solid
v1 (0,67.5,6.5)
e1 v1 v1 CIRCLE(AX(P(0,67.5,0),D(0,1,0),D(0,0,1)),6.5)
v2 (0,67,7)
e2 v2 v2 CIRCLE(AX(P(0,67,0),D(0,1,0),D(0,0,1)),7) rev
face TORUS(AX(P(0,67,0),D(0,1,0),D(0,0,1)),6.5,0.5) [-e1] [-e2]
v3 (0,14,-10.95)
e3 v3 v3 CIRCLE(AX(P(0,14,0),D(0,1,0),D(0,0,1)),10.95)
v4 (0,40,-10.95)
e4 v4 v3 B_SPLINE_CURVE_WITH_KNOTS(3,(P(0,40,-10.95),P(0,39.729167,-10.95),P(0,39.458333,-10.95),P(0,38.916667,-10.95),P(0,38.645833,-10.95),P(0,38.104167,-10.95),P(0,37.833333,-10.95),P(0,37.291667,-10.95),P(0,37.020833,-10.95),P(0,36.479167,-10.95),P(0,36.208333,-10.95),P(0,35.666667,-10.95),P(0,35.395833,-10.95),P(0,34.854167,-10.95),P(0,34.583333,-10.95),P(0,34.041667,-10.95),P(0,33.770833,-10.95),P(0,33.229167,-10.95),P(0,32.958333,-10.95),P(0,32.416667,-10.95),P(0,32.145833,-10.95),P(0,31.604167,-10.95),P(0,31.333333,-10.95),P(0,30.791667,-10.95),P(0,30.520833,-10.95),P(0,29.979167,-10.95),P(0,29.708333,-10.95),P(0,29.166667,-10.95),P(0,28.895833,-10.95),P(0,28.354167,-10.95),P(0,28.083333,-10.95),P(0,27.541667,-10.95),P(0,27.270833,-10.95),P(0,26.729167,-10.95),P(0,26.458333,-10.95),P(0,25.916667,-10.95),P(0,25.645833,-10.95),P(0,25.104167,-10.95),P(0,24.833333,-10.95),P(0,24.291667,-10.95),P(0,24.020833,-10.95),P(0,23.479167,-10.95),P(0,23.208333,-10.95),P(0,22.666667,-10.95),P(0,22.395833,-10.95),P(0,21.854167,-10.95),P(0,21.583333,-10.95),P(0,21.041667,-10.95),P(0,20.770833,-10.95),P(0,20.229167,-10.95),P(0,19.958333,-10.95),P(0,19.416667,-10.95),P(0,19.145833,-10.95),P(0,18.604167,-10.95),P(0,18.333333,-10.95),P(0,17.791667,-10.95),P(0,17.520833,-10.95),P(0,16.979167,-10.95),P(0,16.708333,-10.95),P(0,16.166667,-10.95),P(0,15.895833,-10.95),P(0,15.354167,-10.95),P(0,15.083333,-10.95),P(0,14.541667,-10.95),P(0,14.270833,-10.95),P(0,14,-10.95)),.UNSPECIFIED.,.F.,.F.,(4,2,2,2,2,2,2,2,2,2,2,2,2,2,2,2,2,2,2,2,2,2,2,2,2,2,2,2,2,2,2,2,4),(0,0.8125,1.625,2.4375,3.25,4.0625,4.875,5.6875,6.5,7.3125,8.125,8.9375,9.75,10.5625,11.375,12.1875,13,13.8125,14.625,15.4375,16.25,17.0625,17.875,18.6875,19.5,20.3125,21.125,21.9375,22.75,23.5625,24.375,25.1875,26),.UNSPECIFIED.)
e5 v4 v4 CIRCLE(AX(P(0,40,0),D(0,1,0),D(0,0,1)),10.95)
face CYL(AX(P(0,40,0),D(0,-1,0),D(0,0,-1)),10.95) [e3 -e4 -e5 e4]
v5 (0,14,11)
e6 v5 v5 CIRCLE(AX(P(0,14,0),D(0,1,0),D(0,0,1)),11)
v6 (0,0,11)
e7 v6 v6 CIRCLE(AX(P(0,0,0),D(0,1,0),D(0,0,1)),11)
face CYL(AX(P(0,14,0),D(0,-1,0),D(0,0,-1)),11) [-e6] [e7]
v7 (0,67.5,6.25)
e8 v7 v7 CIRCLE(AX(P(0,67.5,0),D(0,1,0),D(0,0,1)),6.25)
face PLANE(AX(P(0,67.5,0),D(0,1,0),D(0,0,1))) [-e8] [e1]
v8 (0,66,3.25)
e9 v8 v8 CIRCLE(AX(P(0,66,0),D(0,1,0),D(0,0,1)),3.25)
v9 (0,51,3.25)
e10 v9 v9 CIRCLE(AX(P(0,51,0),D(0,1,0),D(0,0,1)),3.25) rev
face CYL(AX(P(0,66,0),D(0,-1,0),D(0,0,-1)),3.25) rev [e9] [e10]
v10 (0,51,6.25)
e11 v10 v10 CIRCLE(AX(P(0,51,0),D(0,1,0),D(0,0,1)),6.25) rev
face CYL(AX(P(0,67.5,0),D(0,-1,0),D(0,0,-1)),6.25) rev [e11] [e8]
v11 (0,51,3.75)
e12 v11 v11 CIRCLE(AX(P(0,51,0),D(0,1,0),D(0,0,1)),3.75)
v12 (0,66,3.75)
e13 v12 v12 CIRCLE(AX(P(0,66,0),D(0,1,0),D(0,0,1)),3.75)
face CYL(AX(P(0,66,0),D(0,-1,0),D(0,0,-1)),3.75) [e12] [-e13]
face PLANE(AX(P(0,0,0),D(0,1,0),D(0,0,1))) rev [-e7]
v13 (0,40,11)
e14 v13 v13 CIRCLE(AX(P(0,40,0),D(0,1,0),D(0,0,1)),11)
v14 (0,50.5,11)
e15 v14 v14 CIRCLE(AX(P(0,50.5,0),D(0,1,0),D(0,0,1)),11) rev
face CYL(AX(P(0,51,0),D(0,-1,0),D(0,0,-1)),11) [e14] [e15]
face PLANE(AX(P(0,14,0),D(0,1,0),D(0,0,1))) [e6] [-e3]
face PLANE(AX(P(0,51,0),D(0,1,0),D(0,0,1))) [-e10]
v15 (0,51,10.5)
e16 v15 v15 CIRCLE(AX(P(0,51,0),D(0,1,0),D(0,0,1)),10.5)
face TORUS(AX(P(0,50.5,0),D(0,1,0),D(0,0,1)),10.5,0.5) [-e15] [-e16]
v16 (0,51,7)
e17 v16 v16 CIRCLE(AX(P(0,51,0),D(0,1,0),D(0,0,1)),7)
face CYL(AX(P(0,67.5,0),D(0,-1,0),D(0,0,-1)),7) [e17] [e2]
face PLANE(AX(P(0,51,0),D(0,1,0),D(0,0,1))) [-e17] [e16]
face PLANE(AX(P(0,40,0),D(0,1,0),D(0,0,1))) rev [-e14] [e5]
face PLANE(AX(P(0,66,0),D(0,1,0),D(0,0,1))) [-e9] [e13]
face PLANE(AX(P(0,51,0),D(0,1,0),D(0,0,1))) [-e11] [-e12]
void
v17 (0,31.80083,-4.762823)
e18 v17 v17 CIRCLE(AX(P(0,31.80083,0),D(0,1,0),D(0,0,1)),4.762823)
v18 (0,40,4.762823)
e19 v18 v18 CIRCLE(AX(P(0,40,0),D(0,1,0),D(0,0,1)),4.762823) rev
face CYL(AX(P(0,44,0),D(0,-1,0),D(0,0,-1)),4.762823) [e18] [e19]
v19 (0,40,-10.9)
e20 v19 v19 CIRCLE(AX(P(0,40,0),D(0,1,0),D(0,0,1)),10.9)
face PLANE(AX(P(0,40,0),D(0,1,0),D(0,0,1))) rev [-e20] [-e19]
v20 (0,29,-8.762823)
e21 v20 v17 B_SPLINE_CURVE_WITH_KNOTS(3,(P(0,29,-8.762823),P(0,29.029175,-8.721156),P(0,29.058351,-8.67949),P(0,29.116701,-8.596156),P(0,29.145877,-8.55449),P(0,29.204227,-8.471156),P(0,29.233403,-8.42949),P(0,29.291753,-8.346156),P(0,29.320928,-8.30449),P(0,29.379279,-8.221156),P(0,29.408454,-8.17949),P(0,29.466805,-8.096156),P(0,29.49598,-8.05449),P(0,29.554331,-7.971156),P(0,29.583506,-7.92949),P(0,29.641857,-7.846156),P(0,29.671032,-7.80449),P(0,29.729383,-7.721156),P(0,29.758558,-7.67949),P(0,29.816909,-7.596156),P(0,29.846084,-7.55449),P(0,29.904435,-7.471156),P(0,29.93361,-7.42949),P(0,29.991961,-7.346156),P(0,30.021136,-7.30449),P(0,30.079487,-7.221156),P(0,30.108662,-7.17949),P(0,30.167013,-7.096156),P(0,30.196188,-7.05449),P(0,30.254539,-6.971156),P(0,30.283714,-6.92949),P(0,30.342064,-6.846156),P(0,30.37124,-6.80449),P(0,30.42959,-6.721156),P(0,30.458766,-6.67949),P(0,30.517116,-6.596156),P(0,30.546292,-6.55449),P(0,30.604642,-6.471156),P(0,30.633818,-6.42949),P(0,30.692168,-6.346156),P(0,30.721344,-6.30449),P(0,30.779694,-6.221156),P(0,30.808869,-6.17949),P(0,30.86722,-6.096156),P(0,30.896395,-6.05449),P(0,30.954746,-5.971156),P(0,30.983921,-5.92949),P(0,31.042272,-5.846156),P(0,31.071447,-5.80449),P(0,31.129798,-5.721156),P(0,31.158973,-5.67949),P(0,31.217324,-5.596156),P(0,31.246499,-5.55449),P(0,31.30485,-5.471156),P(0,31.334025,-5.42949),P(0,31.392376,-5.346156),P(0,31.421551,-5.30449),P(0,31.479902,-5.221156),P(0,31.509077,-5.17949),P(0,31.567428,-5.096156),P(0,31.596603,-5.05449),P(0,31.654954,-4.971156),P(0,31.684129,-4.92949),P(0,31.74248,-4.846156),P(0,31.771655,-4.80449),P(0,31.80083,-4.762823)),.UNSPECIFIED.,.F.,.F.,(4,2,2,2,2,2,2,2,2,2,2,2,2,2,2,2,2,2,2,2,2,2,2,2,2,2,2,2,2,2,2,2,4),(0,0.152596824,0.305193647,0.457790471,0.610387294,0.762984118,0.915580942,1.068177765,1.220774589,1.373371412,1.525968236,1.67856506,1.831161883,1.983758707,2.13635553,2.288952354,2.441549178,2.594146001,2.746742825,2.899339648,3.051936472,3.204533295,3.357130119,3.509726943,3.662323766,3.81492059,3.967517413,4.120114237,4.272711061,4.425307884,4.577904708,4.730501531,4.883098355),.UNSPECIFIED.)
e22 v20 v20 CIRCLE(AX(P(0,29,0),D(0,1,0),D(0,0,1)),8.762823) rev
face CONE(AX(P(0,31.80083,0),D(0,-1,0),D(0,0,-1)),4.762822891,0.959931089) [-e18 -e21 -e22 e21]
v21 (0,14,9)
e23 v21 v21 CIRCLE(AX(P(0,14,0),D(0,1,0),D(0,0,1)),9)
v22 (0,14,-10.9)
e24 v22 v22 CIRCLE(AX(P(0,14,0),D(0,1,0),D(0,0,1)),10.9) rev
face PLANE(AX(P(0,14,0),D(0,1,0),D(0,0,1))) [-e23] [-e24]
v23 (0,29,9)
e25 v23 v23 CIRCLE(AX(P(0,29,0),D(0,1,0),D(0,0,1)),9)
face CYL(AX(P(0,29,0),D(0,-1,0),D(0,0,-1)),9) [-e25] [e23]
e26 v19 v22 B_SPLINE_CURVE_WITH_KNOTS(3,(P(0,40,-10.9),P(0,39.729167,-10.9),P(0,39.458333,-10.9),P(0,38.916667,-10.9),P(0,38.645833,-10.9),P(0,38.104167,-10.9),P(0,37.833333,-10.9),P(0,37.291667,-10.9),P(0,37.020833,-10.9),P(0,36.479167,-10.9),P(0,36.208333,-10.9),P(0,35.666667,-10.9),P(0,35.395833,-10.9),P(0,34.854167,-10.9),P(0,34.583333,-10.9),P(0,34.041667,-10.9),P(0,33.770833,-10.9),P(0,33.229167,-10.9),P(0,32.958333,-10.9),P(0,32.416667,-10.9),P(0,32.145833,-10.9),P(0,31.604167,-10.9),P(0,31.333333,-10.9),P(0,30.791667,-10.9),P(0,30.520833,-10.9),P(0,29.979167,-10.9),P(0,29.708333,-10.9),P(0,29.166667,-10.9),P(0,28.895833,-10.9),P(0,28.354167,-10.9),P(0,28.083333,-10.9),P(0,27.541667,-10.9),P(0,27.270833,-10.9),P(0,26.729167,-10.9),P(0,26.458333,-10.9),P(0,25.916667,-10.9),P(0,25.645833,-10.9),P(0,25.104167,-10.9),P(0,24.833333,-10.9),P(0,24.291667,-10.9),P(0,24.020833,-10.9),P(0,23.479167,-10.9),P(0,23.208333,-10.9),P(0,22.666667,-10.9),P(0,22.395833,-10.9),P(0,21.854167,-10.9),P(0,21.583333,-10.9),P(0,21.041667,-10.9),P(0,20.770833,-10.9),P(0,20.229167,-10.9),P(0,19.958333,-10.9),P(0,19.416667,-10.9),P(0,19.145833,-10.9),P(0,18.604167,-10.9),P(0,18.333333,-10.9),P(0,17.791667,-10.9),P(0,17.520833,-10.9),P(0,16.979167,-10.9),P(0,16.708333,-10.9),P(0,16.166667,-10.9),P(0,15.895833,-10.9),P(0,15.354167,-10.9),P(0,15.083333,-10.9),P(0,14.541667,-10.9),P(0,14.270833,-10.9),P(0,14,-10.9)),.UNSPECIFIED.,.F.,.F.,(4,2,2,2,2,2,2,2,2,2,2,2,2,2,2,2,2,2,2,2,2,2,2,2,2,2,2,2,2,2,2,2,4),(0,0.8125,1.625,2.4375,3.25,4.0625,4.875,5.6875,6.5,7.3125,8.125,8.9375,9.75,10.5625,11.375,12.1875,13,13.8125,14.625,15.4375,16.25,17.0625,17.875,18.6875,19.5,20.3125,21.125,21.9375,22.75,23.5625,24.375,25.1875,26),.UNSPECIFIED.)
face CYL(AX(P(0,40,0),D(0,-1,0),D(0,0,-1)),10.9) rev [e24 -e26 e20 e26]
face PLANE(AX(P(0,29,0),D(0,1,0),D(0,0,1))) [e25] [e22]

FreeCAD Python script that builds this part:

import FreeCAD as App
import Part
import Sketcher
from FreeCAD import Vector


def edges_at(feature, points):
    """Names of the edges that pass closest to the given points."""
    edges = feature.Shape.Edges
    near = lambda p: min(range(len(edges)), key=lambda i: edges[i].distToShape(Part.Vertex(*p))[0])
    return sorted({f"Edge{near(p) + 1}" for p in points})

doc = App.newDocument("Part")
body = doc.addObject("PartDesign::Body", "Body")

# Sketch on XZ plane
sketch1 = body.newObject("Sketcher::SketchObject", "Sketch")
sketch1.AttachmentSupport = (doc.getObject("XZ_Plane"), [""])
sketch1.MapMode = "FlatFace"
sketch1.addGeometry(Part.Circle(Vector(0, 0, 0), Vector(0, 0, 1), 11), False)
sketch1.addConstraint([
    Sketcher.Constraint("Coincident", 0, 3, -1, 1),
    Sketcher.Constraint("Diameter", 0, 22.0),
])
pad1 = body.newObject("PartDesign::Pad", "Pad")
pad1.Profile = sketch1
pad1.Length = 14
pad1.Reversed = True

# Sketch on XZ plane
sketch2 = body.newObject("Sketcher::SketchObject", "Sketch001")
sketch2.AttachmentSupport = (doc.getObject("XZ_Plane"), [""])
sketch2.MapMode = "FlatFace"
sketch2.AttachmentOffset = App.Placement(Vector(0, 0, -14), App.Rotation())
sketch2.addGeometry([
    Part.Circle(Vector(0, 0, 0), Vector(0, 0, 1), 10.95),
    Part.Circle(Vector(0, 0, 0), Vector(0, 0, 1), 10.9),
], False)
sketch2.addConstraint([
    Sketcher.Constraint("Coincident", 0, 3, -1, 1),
    Sketcher.Constraint("Coincident", 1, 3, -1, 1),
    Sketcher.Constraint("Diameter", 0, 21.9),
    Sketcher.Constraint("Diameter", 1, 21.8),
])
pad2 = body.newObject("PartDesign::Pad", "Pad001")
pad2.Profile = sketch2
pad2.Length = 26
pad2.Reversed = True

# Sketch on XZ plane
sketch3 = body.newObject("Sketcher::SketchObject", "Sketch002")
sketch3.AttachmentSupport = (doc.getObject("XZ_Plane"), [""])
sketch3.MapMode = "FlatFace"
sketch3.AttachmentOffset = App.Placement(Vector(0, 0, -40), App.Rotation())
sketch3.addGeometry(Part.Circle(Vector(0, 0, 0), Vector(0, 0, 1), 11), False)
sketch3.addConstraint([
    Sketcher.Constraint("Coincident", 0, 3, -1, 1),
    Sketcher.Constraint("Diameter", 0, 22.0),
])
pad3 = body.newObject("PartDesign::Pad", "Pad002")
pad3.Profile = sketch3
pad3.Length = 11
pad3.Reversed = True

# Sketch on XZ plane
sketch4 = body.newObject("Sketcher::SketchObject", "Sketch003")
sketch4.AttachmentSupport = (doc.getObject("XZ_Plane"), [""])
sketch4.MapMode = "FlatFace"
sketch4.AttachmentOffset = App.Placement(Vector(0, 0, -51), App.Rotation())
sketch4.addGeometry([
    Part.Circle(Vector(0, 0, 0), Vector(0, 0, 1), 7),
    Part.Circle(Vector(0, 0, 0), Vector(0, 0, 1), 6.25),
], False)
sketch4.addConstraint([
    Sketcher.Constraint("Coincident", 0, 3, -1, 1),
    Sketcher.Constraint("Coincident", 1, 3, -1, 1),
    Sketcher.Constraint("Diameter", 0, 14.0),
    Sketcher.Constraint("Diameter", 1, 12.5),
])
pad4 = body.newObject("PartDesign::Pad", "Pad003")
pad4.Profile = sketch4
pad4.Length = 16.5
pad4.Reversed = True

# Sketch on XZ plane
sketch5 = body.newObject("Sketcher::SketchObject", "Sketch004")
sketch5.AttachmentSupport = (doc.getObject("XZ_Plane"), [""])
sketch5.MapMode = "FlatFace"
sketch5.AttachmentOffset = App.Placement(Vector(0, 0, -51), App.Rotation())
sketch5.addGeometry([
    Part.Circle(Vector(0, 0, 0), Vector(0, 0, 1), 3.75),
    Part.Circle(Vector(0, 0, 0), Vector(0, 0, 1), 3.25),
], False)
sketch5.addConstraint([
    Sketcher.Constraint("Coincident", 0, 3, -1, 1),
    Sketcher.Constraint("Coincident", 1, 3, -1, 1),
    Sketcher.Constraint("Diameter", 0, 7.5),
    Sketcher.Constraint("Diameter", 1, 6.5),
])
pad5 = body.newObject("PartDesign::Pad", "Pad004")
pad5.Profile = sketch5
pad5.Length = 15
pad5.Reversed = True
doc.recompute()

fillet = body.newObject("PartDesign::Fillet", "Fillet")
fillet.Base = (pad5, edges_at(pad5, [(0, 51, -11)]))
fillet.Radius = 0.5
doc.recompute()

fillet2 = body.newObject("PartDesign::Fillet", "Fillet001")
fillet2.Base = (fillet, edges_at(fillet, [(0, 67.5, -7)]))
fillet2.Radius = 0.5

# Sketch on XZ plane
sketch6 = body.newObject("Sketcher::SketchObject", "Sketch005")
sketch6.AttachmentSupport = (doc.getObject("XZ_Plane"), [""])
sketch6.MapMode = "FlatFace"
sketch6.AttachmentOffset = App.Placement(Vector(0, 0, -14), App.Rotation())
sketch6.addGeometry(Part.Circle(Vector(0, 0, 0), Vector(0, 0, 1), 9), False)
sketch6.addConstraint([
    Sketcher.Constraint("Coincident", 0, 3, -1, 1),
    Sketcher.Constraint("Diameter", 0, 18.0),
])
pad6 = body.newObject("PartDesign::Pad", "Pad005")
pad6.Profile = sketch6
pad6.Length = 15
pad6.Reversed = True

# Sketch on XZ plane
sketch7 = body.newObject("Sketcher::SketchObject", "Sketch006")
sketch7.AttachmentSupport = (doc.getObject("XZ_Plane"), [""])
sketch7.MapMode = "FlatFace"
sketch7.AttachmentOffset = App.Placement(Vector(0, 0, -29), App.Rotation())
sketch7.addGeometry(Part.Circle(Vector(0, 0, 0), Vector(0, 0, 1), 4.762823), False)
sketch7.addConstraint([
    Sketcher.Constraint("Coincident", 0, 3, -1, 1),
    Sketcher.Constraint("Diameter", 0, 9.525646),
])
pad7 = body.newObject("PartDesign::Pad", "Pad006")
pad7.Profile = sketch7
pad7.Length = 15
pad7.Reversed = True
doc.recompute()

chamfer = body.newObject("PartDesign::Chamfer", "Chamfer")
chamfer.Base = (pad7, edges_at(pad7, [(0, 29, -4.763)]))
chamfer.ChamferType = "Two distances"
chamfer.Size = 4
chamfer.Size2 = 2.80083
chamfer.FlipDirection = True

doc.recompute()
